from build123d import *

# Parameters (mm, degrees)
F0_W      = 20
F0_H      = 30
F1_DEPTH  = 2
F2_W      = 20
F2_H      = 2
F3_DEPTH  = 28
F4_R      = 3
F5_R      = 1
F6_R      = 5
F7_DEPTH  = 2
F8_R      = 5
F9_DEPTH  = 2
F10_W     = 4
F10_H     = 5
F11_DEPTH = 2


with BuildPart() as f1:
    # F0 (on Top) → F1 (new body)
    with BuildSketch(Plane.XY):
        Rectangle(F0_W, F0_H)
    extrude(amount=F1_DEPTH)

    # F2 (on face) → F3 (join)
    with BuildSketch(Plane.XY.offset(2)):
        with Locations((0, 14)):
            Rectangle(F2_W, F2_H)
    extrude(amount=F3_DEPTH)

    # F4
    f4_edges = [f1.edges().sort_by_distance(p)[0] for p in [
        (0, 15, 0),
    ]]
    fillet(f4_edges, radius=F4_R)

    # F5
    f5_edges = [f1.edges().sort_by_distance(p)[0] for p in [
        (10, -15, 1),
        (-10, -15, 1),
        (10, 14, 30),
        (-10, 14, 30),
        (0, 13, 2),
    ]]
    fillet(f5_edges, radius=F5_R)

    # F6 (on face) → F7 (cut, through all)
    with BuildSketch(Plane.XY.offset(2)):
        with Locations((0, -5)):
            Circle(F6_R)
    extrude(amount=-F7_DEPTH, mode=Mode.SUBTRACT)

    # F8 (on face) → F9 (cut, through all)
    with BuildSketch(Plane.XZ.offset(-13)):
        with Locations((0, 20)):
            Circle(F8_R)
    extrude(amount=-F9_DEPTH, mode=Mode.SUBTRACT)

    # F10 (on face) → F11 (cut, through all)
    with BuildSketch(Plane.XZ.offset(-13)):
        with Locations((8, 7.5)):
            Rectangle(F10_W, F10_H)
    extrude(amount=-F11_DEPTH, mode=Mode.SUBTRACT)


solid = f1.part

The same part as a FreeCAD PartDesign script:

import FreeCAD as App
import Part
import Sketcher


def edges_at(feature, points):
    """Names of the edges that pass closest to the given points."""
    edges = feature.Shape.Edges
    near = lambda p: min(range(len(edges)), key=lambda i: edges[i].distToShape(Part.Vertex(*p))[0])
    return sorted({f"Edge{near(p) + 1}" for p in points})


def add_polygon(sketch, points):
    """Adds a closed chain of lines whose ends are joined by coincident constraints."""
    first, n = sketch.GeometryCount, len(points)
    for a, b in zip(points, points[1:] + points[:1]):
        sketch.addGeometry(Part.LineSegment(App.Vector(*a, 0), App.Vector(*b, 0)), False)
    for i in range(n):
        sketch.addConstraint(Sketcher.Constraint("Coincident", first + i, 2, first + (i + 1) % n, 1))

doc = App.newDocument("Part")
body = doc.addObject("PartDesign::Body", "Body")

# Sketch on XY plane
sketch1 = body.newObject("Sketcher::SketchObject", "Sketch")
sketch1.AttachmentSupport = (doc.getObject("XY_Plane"), [""])
sketch1.MapMode = "FlatFace"
add_polygon(sketch1, [(-10, 15), (-10, -15), (10, -15), (10, 15)])  # lines 0-3
sketch1.addConstraint([
    Sketcher.Constraint("Vertical", 0),
    Sketcher.Constraint("Horizontal", 1),
    Sketcher.Constraint("Vertical", 2),
    Sketcher.Constraint("Horizontal", 3),
    Sketcher.Constraint("Symmetric", 0, 2, 2, 2, -1, 1),
    Sketcher.Constraint("DistanceX", 1, 1, 1, 2, 20.0),
    Sketcher.Constraint("DistanceY", 0, 2, 0, 1, 30.0),
])
pad1 = body.newObject("PartDesign::Pad", "Pad")
pad1.Profile = sketch1
pad1.Length = 2

# Sketch on XY plane
sketch2 = body.newObject("Sketcher::SketchObject", "Sketch001")
sketch2.AttachmentSupport = (doc.getObject("XY_Plane"), [""])
sketch2.MapMode = "FlatFace"
sketch2.AttachmentOffset = App.Placement(App.Vector(0, 0, 2), App.Rotation())
add_polygon(sketch2, [(-10, 15), (-10, 13), (10, 13), (10, 15)])  # lines 0-3
sketch2.addConstraint([
    Sketcher.Constraint("Vertical", 0),
    Sketcher.Constraint("Horizontal", 1),
    Sketcher.Constraint("Vertical", 2),
    Sketcher.Constraint("Horizontal", 3),
    Sketcher.Constraint("DistanceX", 1, 1, 1, 2, 20.0),
    Sketcher.Constraint("DistanceY", 0, 2, 0, 1, 2.0),
    Sketcher.Constraint("DistanceX", 0, 2, -1, 1, 10.0),
    Sketcher.Constraint("DistanceY", -1, 1, 0, 2, 13.0),
])
pad2 = body.newObject("PartDesign::Pad", "Pad001")
pad2.Profile = sketch2
pad2.Length = 28
doc.recompute()

fillet = body.newObject("PartDesign::Fillet", "Fillet")
fillet.Base = (pad2, edges_at(pad2, [(0, 15, 0)]))
fillet.Radius = 3
doc.recompute()

fillet2 = body.newObject("PartDesign::Fillet", "Fillet001")
fillet2.Base = (fillet, edges_at(fillet, [
    (10, -15, 1),
    (-10, -15, 1),
    (10, 14, 30),
    (-10, 14, 30),
    (0, 13, 2),
]))
fillet2.Radius = 1

# Sketch on XY plane
sketch3 = body.newObject("Sketcher::SketchObject", "Sketch002")
sketch3.AttachmentSupport = (doc.getObject("XY_Plane"), [""])
sketch3.MapMode = "FlatFace"
sketch3.AttachmentOffset = App.Placement(App.Vector(0, 0, 2), App.Rotation())
sketch3.addGeometry(Part.Circle(App.Vector(0, -5, 0), App.Vector(0, 0, 1), 5), False)
sketch3.addConstraint([
    Sketcher.Constraint("PointOnObject", 0, 3, -2),
    Sketcher.Constraint("Diameter", 0, 10.0),
    Sketcher.Constraint("DistanceY", 0, 3, -1, 1, 5.0),
])
pocket1 = body.newObject("PartDesign::Pocket", "Pocket")
pocket1.Profile = sketch3
pocket1.Type = "ThroughAll"

# Sketch on XZ plane
sketch4 = body.newObject("Sketcher::SketchObject", "Sketch003")
sketch4.AttachmentSupport = (doc.getObject("XZ_Plane"), [""])
sketch4.MapMode = "FlatFace"
sketch4.AttachmentOffset = App.Placement(App.Vector(0, 0, -13), App.Rotation())
sketch4.addGeometry(Part.Circle(App.Vector(0, 20, 0), App.Vector(0, 0, 1), 5), False)
sketch4.addConstraint([
    Sketcher.Constraint("PointOnObject", 0, 3, -2),
    Sketcher.Constraint("Diameter", 0, 10.0),
    Sketcher.Constraint("DistanceY", -1, 1, 0, 3, 20.0),
])
pocket2 = body.newObject("PartDesign::Pocket", "Pocket001")
pocket2.Profile = sketch4
pocket2.Type = "ThroughAll"

# Sketch on XZ plane
sketch5 = body.newObject("Sketcher::SketchObject", "Sketch004")
sketch5.AttachmentSupport = (doc.getObject("XZ_Plane"), [""])
sketch5.MapMode = "FlatFace"
sketch5.AttachmentOffset = App.Placement(App.Vector(0, 0, -13), App.Rotation())
add_polygon(sketch5, [(6, 10), (6, 5), (10, 5), (10, 10)])  # lines 0-3
sketch5.addConstraint([
    Sketcher.Constraint("Vertical", 0),
    Sketcher.Constraint("Horizontal", 1),
    Sketcher.Constraint("Vertical", 2),
    Sketcher.Constraint("Horizontal", 3),
    Sketcher.Constraint("DistanceX", 1, 1, 1, 2, 4.0),
    Sketcher.Constraint("DistanceY", 0, 2, 0, 1, 5.0),
    Sketcher.Constraint("DistanceX", -1, 1, 0, 2, 6.0),
    Sketcher.Constraint("DistanceY", -1, 1, 0, 2, 5.0),
])
pocket3 = body.newObject("PartDesign::Pocket", "Pocket002")
pocket3.Profile = sketch5
pocket3.Type = "ThroughAll"

doc.recompute()
